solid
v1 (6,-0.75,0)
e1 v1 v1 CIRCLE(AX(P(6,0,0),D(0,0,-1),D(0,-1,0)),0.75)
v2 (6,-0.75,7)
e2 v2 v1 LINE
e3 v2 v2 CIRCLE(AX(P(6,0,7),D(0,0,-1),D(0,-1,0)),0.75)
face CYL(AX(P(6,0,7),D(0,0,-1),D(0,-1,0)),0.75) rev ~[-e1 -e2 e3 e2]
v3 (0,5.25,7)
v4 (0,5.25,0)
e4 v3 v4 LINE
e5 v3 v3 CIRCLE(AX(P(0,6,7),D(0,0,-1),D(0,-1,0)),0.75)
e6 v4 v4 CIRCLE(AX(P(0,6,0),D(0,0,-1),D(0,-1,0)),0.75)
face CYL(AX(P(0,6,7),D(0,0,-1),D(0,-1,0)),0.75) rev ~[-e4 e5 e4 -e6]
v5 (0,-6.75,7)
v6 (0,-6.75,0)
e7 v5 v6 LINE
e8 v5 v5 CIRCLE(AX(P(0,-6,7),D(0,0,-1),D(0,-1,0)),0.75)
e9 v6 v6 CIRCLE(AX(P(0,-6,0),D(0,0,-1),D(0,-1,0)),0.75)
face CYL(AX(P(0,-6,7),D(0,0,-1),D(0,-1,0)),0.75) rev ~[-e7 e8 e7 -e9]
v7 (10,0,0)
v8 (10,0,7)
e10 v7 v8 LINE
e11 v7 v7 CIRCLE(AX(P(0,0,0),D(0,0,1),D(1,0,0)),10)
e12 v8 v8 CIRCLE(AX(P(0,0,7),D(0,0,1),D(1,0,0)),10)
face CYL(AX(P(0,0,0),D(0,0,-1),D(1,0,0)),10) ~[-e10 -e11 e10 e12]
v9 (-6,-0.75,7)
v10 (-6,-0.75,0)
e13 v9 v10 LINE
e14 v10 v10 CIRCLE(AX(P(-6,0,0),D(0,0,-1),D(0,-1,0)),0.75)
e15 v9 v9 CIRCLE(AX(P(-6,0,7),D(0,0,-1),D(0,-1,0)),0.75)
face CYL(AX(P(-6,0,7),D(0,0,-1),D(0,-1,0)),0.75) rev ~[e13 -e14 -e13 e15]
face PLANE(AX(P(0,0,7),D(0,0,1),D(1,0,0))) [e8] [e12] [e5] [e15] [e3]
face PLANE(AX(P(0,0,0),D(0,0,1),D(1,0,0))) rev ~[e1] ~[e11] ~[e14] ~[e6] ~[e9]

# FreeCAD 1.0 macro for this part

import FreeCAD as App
import Part
import Sketcher

V = App.Vector

doc = App.newDocument("Part")
params = doc.addObject("Spreadsheet::Sheet", "Params")
for row, (alias, value) in enumerate([
    ("sketch1_diameter", "20 mm"),
    ("pad1_length", "7 mm"),
    ("sketch2_diameter", "1.5 mm"),
    ("hole_diameter", "1.5 mm"),
], start=1):
    params.set(f"A{row}", alias)
    params.set(f"B{row}", "=" + value)
    params.setAlias(f"B{row}", alias)

body = doc.addObject("PartDesign::Body", "Body")

sketch1 = doc.addObject("Sketcher::SketchObject", "Sketch")
body.addObject(sketch1)
sketch1.AttachmentSupport = (doc.XY_Plane, [""])
sketch1.MapMode = "FlatFace"
sketch1.addGeometry(Part.Circle(V(0, 0, 0), V(0, 0, 1), 10), False)
sketch1.addConstraint([
    Sketcher.Constraint("Coincident", 0, 3, -1, 1),
    Sketcher.Constraint("Diameter", 0, 20.0),
])
sketch1.setExpression("Constraints[1]", "Params.sketch1_diameter")
pad1 = doc.addObject("PartDesign::Pad", "Pad")
body.addObject(pad1)
pad1.Profile = sketch1
pad1.setExpression("Length", "Params.pad1_length")

sketch2 = doc.addObject("Sketcher::SketchObject", "Sketch001")
body.addObject(sketch2)
sketch2.AttachmentSupport = (doc.XY_Plane, [""])
sketch2.MapMode = "FlatFace"
sketch2.AttachmentOffset = App.Placement(V(0, 0, 7), App.Rotation())
sketch2.addGeometry([
    Part.Circle(V(0, 6, 0), V(0, 0, 1), 0.75),
    Part.Circle(V(-6, 0, 0), V(0, 0, 1), 0.75),
    Part.Circle(V(0, -6, 0), V(0, 0, 1), 0.75),
    Part.Circle(V(6, 0, 0), V(0, 0, 1), 0.75),
], False)
sketch2.addConstraint([
    Sketcher.Constraint("Equal", 0, 1),
    Sketcher.Constraint("Equal", 1, 2),
    Sketcher.Constraint("Equal", 2, 3),
    Sketcher.Constraint("Symmetric", 0, 3, 2, 3, -1, 1),
    Sketcher.Constraint("Symmetric", 1, 3, 3, 3, -1, 1),
    Sketcher.Constraint("PointOnObject", 0, 3, -2),
    Sketcher.Constraint("PointOnObject", 1, 3, -1),
    Sketcher.Constraint("Diameter", 0, 1.5),
    Sketcher.Constraint("DistanceY", -1, 1, 0, 3, 6.0),
    Sketcher.Constraint("DistanceX", 1, 3, -1, 1, 6.0),
])
sketch2.setExpression("Constraints[7]", "Params.sketch2_diameter")
doc.recompute()
hole = doc.addObject("PartDesign::Hole", "Hole")
body.addObject(hole)
hole.Profile = sketch2
hole.ThreadType = "None"
hole.setExpression("Diameter", "Params.hole_diameter")
hole.DepthType = "ThroughAll"

doc.recompute()
